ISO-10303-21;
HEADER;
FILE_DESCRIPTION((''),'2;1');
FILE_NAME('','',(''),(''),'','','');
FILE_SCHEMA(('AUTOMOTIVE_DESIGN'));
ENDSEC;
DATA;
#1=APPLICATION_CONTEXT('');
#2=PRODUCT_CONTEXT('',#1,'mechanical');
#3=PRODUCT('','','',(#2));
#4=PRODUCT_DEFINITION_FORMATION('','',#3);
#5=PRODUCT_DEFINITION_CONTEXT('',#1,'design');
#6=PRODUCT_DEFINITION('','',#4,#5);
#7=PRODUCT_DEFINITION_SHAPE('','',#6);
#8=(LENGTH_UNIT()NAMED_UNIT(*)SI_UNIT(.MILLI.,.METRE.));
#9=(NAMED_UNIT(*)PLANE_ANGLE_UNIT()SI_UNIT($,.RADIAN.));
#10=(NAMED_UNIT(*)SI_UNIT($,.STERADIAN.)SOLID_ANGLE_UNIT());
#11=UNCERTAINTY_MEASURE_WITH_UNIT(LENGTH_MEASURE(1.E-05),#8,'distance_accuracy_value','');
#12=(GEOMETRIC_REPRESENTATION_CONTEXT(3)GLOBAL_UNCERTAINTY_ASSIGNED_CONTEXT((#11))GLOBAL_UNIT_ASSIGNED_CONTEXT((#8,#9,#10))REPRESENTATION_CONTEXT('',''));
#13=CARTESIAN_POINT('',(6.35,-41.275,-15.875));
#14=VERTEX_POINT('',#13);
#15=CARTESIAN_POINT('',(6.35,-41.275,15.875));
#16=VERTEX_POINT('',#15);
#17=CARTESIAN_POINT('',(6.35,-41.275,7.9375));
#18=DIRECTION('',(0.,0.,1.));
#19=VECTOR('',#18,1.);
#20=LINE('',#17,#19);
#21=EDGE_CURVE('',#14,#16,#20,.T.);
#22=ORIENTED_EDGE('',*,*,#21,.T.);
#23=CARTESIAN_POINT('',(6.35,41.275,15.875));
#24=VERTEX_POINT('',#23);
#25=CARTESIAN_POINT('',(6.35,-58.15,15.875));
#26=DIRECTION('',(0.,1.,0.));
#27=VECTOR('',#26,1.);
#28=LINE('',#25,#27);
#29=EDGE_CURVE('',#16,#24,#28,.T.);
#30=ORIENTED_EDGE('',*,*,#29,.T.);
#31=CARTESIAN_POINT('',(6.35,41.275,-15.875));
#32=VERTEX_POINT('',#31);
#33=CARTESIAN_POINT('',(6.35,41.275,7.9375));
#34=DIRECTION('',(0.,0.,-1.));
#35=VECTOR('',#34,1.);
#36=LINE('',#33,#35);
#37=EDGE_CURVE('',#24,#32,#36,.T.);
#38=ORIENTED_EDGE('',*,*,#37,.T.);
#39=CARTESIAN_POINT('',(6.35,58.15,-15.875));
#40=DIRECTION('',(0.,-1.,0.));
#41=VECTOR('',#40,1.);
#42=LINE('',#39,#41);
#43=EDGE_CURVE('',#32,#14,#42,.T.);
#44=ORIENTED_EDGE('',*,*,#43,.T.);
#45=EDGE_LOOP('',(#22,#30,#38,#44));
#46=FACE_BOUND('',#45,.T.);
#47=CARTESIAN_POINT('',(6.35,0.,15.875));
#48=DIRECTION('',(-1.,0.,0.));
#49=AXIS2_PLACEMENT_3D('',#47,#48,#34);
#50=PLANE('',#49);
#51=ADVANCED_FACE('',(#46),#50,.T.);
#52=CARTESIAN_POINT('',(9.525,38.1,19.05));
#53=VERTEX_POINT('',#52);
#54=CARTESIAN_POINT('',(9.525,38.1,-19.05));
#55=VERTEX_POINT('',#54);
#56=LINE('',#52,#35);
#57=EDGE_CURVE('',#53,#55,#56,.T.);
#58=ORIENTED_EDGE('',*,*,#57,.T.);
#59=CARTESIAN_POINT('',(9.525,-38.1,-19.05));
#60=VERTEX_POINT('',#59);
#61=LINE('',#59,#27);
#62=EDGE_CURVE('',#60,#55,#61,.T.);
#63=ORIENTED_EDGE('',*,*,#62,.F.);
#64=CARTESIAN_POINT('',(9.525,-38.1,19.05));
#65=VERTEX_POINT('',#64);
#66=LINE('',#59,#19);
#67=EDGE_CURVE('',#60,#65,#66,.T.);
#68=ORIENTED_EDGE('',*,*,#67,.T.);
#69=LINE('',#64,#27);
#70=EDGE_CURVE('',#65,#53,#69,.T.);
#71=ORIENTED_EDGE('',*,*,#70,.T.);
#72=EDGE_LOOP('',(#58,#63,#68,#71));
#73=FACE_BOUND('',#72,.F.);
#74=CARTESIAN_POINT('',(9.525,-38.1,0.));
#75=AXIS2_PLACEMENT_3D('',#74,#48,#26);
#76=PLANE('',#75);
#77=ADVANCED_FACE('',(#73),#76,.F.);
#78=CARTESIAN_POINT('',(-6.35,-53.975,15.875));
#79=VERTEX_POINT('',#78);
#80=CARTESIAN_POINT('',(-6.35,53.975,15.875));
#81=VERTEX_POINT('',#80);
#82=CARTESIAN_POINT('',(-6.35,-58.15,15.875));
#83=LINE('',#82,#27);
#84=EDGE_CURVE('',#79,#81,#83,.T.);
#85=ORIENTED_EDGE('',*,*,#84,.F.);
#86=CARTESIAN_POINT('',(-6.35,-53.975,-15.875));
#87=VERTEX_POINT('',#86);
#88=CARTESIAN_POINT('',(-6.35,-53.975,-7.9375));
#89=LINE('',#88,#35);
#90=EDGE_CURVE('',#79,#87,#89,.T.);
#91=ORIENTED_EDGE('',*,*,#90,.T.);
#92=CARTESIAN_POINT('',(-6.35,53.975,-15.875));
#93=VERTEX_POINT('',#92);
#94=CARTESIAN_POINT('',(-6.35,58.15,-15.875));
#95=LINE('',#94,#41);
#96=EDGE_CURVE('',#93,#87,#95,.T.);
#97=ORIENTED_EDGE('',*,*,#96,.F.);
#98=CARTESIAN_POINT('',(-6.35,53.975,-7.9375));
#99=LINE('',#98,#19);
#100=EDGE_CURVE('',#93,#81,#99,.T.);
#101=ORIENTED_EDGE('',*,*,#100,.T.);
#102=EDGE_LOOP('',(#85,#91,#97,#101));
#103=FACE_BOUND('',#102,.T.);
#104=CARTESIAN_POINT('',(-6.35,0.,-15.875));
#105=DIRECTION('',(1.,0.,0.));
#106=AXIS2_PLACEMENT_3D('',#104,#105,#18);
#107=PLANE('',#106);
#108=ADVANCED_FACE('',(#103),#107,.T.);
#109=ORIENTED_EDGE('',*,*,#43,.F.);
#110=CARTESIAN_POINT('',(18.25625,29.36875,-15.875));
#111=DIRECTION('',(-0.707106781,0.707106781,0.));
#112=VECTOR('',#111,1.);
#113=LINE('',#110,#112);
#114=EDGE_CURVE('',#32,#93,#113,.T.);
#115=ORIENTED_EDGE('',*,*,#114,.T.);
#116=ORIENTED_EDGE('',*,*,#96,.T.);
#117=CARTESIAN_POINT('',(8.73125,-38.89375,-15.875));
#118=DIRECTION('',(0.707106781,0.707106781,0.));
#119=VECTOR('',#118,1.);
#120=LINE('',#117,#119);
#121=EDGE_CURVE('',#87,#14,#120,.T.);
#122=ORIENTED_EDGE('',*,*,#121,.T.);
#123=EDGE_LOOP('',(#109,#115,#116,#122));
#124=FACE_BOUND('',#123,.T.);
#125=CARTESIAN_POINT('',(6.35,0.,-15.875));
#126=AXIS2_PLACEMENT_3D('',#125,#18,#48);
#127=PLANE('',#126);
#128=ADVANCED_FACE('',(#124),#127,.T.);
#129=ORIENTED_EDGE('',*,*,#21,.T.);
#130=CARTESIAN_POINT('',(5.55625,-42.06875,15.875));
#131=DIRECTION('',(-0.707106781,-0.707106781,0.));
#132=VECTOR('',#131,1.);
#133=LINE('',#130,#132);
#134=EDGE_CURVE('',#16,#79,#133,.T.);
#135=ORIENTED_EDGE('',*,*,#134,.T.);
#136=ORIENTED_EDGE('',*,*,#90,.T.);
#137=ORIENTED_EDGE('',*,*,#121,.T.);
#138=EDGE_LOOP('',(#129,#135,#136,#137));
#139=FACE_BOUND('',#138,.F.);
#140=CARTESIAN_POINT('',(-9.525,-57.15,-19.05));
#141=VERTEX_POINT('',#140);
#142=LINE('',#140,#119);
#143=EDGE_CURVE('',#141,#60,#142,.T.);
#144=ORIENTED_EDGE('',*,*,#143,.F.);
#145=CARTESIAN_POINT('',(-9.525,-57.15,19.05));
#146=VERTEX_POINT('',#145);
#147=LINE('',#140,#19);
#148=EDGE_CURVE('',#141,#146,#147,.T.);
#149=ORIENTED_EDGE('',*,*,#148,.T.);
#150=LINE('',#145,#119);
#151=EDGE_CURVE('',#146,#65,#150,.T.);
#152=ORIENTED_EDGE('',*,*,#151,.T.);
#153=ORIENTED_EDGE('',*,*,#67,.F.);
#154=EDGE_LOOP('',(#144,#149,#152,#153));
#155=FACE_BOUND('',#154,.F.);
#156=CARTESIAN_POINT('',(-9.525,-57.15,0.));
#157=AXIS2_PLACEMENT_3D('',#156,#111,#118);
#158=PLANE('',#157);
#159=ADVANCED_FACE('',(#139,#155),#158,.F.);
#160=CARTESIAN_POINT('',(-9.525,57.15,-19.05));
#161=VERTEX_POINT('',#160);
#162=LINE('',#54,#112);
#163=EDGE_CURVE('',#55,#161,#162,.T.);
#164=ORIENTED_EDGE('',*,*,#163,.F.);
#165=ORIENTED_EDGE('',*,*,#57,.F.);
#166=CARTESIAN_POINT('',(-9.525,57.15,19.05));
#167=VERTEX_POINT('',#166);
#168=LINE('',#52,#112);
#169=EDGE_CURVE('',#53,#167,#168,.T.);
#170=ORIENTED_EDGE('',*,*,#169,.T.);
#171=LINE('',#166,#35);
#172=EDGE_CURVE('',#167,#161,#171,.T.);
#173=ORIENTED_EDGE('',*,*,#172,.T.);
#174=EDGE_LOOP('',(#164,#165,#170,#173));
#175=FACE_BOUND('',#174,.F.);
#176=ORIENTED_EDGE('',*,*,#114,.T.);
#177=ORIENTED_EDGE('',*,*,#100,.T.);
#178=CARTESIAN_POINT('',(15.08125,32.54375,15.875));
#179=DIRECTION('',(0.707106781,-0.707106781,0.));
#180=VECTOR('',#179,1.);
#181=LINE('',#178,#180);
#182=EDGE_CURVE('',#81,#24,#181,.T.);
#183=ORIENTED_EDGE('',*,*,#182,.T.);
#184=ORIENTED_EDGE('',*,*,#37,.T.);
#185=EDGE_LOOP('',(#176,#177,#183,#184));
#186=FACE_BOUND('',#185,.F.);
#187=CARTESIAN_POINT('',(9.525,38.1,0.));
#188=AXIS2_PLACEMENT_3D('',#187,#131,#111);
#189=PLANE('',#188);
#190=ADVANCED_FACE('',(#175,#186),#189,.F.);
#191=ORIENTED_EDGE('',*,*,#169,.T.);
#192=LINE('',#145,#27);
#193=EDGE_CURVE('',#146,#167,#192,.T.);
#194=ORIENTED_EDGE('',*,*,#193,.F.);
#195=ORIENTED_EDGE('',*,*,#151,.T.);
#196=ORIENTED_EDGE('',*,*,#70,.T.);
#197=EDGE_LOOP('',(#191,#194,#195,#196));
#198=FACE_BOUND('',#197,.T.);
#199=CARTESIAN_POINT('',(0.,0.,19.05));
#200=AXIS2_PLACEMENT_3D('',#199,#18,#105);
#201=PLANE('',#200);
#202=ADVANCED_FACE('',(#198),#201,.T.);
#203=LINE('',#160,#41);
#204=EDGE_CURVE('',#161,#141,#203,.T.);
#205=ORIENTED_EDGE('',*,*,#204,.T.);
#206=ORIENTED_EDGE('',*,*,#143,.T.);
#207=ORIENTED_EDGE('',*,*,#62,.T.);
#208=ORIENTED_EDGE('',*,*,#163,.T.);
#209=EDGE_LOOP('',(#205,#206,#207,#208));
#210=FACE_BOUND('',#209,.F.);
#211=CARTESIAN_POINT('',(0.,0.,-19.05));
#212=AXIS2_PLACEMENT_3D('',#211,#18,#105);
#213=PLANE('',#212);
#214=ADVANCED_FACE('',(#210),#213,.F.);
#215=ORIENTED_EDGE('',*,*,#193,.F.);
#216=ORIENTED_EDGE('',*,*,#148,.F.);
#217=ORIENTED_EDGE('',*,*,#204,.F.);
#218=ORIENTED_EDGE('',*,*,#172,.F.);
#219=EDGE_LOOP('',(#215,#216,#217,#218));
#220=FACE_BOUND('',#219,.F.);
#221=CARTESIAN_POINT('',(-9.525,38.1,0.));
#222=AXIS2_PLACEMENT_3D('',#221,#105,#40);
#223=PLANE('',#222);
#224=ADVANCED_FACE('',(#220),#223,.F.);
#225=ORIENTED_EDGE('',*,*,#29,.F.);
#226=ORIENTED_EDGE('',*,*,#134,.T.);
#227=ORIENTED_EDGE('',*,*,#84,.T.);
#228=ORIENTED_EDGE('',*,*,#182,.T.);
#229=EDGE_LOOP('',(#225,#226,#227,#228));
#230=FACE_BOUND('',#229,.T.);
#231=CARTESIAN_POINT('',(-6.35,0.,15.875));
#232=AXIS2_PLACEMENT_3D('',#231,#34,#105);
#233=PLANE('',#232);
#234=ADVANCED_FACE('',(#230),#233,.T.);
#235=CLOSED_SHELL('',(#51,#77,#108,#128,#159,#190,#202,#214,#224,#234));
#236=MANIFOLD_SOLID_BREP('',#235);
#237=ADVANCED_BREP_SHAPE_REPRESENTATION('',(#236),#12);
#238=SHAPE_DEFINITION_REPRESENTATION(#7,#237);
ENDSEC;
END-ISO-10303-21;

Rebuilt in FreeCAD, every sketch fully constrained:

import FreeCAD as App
import Part
import Sketcher

V = App.Vector
Q = App.Units.Quantity


def add_polygon(sketch, points):
    """Adds a closed chain of lines whose ends are joined by coincident constraints."""
    first, n = sketch.GeometryCount, len(points)
    for a, b in zip(points, points[1:] + points[:1]):
        sketch.addGeometry(Part.LineSegment(App.Vector(*a, 0), App.Vector(*b, 0)), False)
    for i in range(n):
        sketch.addConstraint(Sketcher.Constraint("Coincident", first + i, 2, first + (i + 1) % n, 1))

doc = App.newDocument("Part")
body = doc.addObject("PartDesign::Body", "Body")

# Sketch on XY plane
sketch1 = doc.addObject("Sketcher::SketchObject", "Sketch")
body.addObject(sketch1)
sketch1.AttachmentSupport = (doc.XY_Plane, [""])
sketch1.MapMode = "FlatFace"
add_polygon(sketch1, [(-10, -57), (10, -38), (10, 38), (-10, 57)])  # lines 0-3
sketch1.addConstraint([
    Sketcher.Constraint("Vertical", 1),
    Sketcher.Constraint("Vertical", 3),
    Sketcher.Constraint("Perpendicular", 0, 2),
    Sketcher.Constraint("Equal", 0, 2),
    Sketcher.Constraint("DistanceY", 3, 2, 3, 1, Q("4.5 in")),
    Sketcher.Constraint("DistanceY", 1, 1, 1, 2, Q("3 in")),
    Sketcher.Constraint("DistanceY", 0, 2, -1, 1, Q("1.5 in")),
    Sketcher.Constraint("DistanceX", -1, 1, 0, 2, Q("0.375 in")),
])
pad1 = doc.addObject("PartDesign::Pad", "Pad")
body.addObject(pad1)
pad1.Profile = sketch1
pad1.Length = Q("1.5 in")
pad1.Midplane = True

# Sketch on XZ plane
sketch2 = doc.addObject("Sketcher::SketchObject", "Sketch001")
body.addObject(sketch2)
sketch2.AttachmentSupport = (doc.XZ_Plane, [""])
sketch2.MapMode = "FlatFace"
add_polygon(sketch2, [(-6, -16), (-6, 16), (6, 16), (6, -16)])  # lines 0-3
sketch2.addConstraint([
    Sketcher.Constraint("Vertical", 0),
    Sketcher.Constraint("Horizontal", 1),
    Sketcher.Constraint("Vertical", 2),
    Sketcher.Constraint("Horizontal", 3),
    Sketcher.Constraint("Symmetric", 0, 2, 2, 2, -1, 1),
    Sketcher.Constraint("DistanceX", 1, 1, 1, 2, Q("0.5 in")),
    Sketcher.Constraint("DistanceY", 0, 1, 0, 2, Q("1.25 in")),
])
pocket1 = doc.addObject("PartDesign::Pocket", "Pocket")
body.addObject(pocket1)
pocket1.Profile = sketch2
pocket1.Type = "ThroughAll"
pocket1.Midplane = True

doc.recompute()
